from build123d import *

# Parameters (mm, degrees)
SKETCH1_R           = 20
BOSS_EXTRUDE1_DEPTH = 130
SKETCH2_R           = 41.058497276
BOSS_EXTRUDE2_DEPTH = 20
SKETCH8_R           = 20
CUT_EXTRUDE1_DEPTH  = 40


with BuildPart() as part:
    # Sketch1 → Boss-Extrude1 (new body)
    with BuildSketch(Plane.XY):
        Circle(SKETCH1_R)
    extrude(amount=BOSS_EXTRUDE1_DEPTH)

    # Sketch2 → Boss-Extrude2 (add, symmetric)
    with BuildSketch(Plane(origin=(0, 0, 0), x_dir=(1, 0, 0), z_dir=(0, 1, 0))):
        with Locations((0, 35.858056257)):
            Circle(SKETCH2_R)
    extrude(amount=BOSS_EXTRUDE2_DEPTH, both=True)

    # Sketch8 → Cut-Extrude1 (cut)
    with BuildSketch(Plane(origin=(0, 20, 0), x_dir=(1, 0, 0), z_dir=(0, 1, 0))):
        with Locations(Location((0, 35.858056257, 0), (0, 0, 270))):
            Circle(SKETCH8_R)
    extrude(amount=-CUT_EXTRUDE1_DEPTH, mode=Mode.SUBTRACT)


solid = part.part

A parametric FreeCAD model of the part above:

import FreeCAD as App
import Part
import Sketcher

V = App.Vector
Q = App.Units.Quantity

doc = App.newDocument("Part")
params = doc.addObject("Spreadsheet::Sheet", "Params")
for row, (alias, value) in enumerate([
    ("sketch1_diameter", "40 mm"),
    ("pad1_length", "130 mm"),
    ("pad2_length", "40 mm"),
    ("sketch3_diameter", "40 mm"),
    ("pocket1_length", "40 mm"),
], start=1):
    params.set(f"A{row}", alias)
    params.set(f"B{row}", "=" + value)
    params.setAlias(f"B{row}", alias)

body = doc.addObject("PartDesign::Body", "Body")

# Sketch on XY plane
sketch1 = body.newObject("Sketcher::SketchObject", "Sketch")
sketch1.AttachmentSupport = (doc.getObject("XY_Plane"), [""])
sketch1.MapMode = "FlatFace"
sketch1.addGeometry(Part.Circle(V(0, 0, 0), V(0, 0, 1), 20), False)
sketch1.addConstraint([
    Sketcher.Constraint("Coincident", 0, 3, -1, 1),
    Sketcher.Constraint("Diameter", 0, Q("40 mm")),
])
sketch1.setExpression("Constraints[1]", "Params.sketch1_diameter")
pad1 = body.newObject("PartDesign::Pad", "Pad")
pad1.Profile = sketch1
pad1.setExpression("Length", "Params.pad1_length")

# Sketch on XZ plane
sketch2 = body.newObject("Sketcher::SketchObject", "Sketch001")
sketch2.AttachmentSupport = (doc.getObject("XZ_Plane"), [""])
sketch2.MapMode = "FlatFace"
sketch2.addGeometry(Part.Circle(V(0, -36, 0), V(0, 0, 1), 41), False)
sketch2.addConstraint([
    Sketcher.Constraint("PointOnObject", 0, 3, -2),
    Sketcher.Constraint("Diameter", 0, Q("82.116995 mm")),
    Sketcher.Constraint("DistanceY", 0, 3, -1, 1, Q("35.858056 mm")),
])
pad2 = body.newObject("PartDesign::Pad", "Pad001")
pad2.Profile = sketch2
pad2.setExpression("Length", "Params.pad2_length")
pad2.Midplane = True

# Sketch on XZ plane
sketch3 = body.newObject("Sketcher::SketchObject", "Sketch002")
sketch3.AttachmentSupport = (doc.getObject("XZ_Plane"), [""])
sketch3.MapMode = "FlatFace"
sketch3.AttachmentOffset = App.Placement(V(0, 0, -20), App.Rotation())
sketch3.addGeometry(Part.Circle(V(0, -36, 0), V(0, 0, 1), 20), False)
sketch3.addConstraint([
    Sketcher.Constraint("PointOnObject", 0, 3, -2),
    Sketcher.Constraint("Diameter", 0, Q("40 mm")),
    Sketcher.Constraint("DistanceY", 0, 3, -1, 1, Q("35.858056 mm")),
])
sketch3.setExpression("Constraints[1]", "Params.sketch3_diameter")
pocket1 = body.newObject("PartDesign::Pocket", "Pocket")
pocket1.Profile = sketch3
pocket1.setExpression("Length", "Params.pocket1_length")
pocket1.Reversed = True

doc.recompute()
